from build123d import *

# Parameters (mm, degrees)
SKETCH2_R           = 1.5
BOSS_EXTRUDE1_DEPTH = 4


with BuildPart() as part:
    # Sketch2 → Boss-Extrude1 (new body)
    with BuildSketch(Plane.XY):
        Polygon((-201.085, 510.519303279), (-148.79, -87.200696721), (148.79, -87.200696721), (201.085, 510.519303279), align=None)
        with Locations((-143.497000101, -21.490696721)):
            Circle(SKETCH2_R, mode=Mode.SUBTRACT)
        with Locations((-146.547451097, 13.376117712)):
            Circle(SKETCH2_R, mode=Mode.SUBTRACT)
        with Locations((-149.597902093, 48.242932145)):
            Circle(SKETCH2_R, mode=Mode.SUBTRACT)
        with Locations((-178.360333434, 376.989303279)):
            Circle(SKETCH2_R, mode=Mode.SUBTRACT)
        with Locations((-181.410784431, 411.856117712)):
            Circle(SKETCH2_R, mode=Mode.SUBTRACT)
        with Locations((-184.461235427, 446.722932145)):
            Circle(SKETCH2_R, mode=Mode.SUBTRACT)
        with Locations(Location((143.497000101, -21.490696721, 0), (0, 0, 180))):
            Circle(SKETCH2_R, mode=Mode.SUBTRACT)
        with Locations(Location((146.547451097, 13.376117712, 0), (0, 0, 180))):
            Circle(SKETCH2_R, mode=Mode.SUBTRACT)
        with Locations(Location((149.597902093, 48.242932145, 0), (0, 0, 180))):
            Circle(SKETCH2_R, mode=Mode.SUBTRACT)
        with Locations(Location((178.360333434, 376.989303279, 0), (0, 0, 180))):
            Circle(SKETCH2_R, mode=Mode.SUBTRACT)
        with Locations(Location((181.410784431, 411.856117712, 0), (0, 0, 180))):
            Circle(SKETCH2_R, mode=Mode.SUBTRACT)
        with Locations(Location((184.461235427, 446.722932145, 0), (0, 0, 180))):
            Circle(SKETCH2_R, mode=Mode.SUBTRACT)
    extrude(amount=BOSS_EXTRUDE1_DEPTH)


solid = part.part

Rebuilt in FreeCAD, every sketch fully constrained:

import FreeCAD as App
import Part
import Sketcher

V = App.Vector
Q = App.Units.Quantity

doc = App.newDocument("Part")
body = doc.addObject("PartDesign::Body", "Body")

sketch1 = body.newObject("Sketcher::SketchObject", "Sketch")
sketch1.AttachmentSupport = (doc.getObject("XY_Plane"), [""])
sketch1.MapMode = "FlatFace"
sketch1.addGeometry([
    Part.LineSegment(V(-201.1, 510.5, 0), V(-148.8, -87.2, 0)),
    Part.LineSegment(V(-148.8, -87.2, 0), V(148.8, -87.2, 0)),
    Part.LineSegment(V(148.8, -87.2, 0), V(201.1, 510.5, 0)),
    Part.LineSegment(V(201.1, 510.5, 0), V(-201.1, 510.5, 0)),
    Part.Circle(V(-143.5, -21.5, 0), V(0, 0, 1), 1.5),
    Part.Circle(V(-146.5, 13.4, 0), V(0, 0, 1), 1.5),
    Part.Circle(V(-149.6, 48.2, 0), V(0, 0, 1), 1.5),
    Part.Circle(V(143.5, -21.5, 0), V(0, 0, 1), 1.5),
    Part.Circle(V(146.5, 13.4, 0), V(0, 0, 1), 1.5),
    Part.Circle(V(149.6, 48.2, 0), V(0, 0, 1), 1.5),
    Part.Circle(V(-178.4, 377, 0), V(0, 0, 1), 1.5),
    Part.Circle(V(-181.4, 411.9, 0), V(0, 0, 1), 1.5),
    Part.Circle(V(-184.5, 446.7, 0), V(0, 0, 1), 1.5),
    Part.Circle(V(178.4, 377, 0), V(0, 0, 1), 1.5),
    Part.Circle(V(181.4, 411.9, 0), V(0, 0, 1), 1.5),
    Part.Circle(V(184.5, 446.7, 0), V(0, 0, 1), 1.5),
], False)
sketch1.addConstraint([
    Sketcher.Constraint("Coincident", 0, 2, 1, 1),
    Sketcher.Constraint("Coincident", 1, 2, 2, 1),
    Sketcher.Constraint("Coincident", 2, 2, 3, 1),
    Sketcher.Constraint("Coincident", 3, 2, 0, 1),
    Sketcher.Constraint("Horizontal", 1),
    Sketcher.Constraint("Horizontal", 3),
    Sketcher.Constraint("Equal", 4, 5),
    Sketcher.Constraint("Equal", 5, 6),
    Sketcher.Constraint("Equal", 6, 7),
    Sketcher.Constraint("Equal", 7, 8),
    Sketcher.Constraint("Equal", 8, 9),
    Sketcher.Constraint("Equal", 9, 10),
    Sketcher.Constraint("Equal", 10, 11),
    Sketcher.Constraint("Equal", 11, 12),
    Sketcher.Constraint("Equal", 12, 13),
    Sketcher.Constraint("Equal", 13, 14),
    Sketcher.Constraint("Equal", 14, 15),
    Sketcher.Constraint("Symmetric", 4, 3, 7, 3, -2),
    Sketcher.Constraint("Symmetric", 5, 3, 8, 3, -2),
    Sketcher.Constraint("Symmetric", 6, 3, 9, 3, -2),
    Sketcher.Constraint("Symmetric", 10, 3, 13, 3, -2),
    Sketcher.Constraint("Symmetric", 11, 3, 14, 3, -2),
    Sketcher.Constraint("Symmetric", 12, 3, 15, 3, -2),
    Sketcher.Constraint("Equal", 0, 2),
    Sketcher.Constraint("Diameter", 4, Q("3 mm")),
    Sketcher.Constraint("DistanceX", 1, 1, 1, 2, Q("297.58 mm")),
    Sketcher.Constraint("DistanceX", 3, 2, 3, 1, Q("402.17 mm")),
    Sketcher.Constraint("DistanceX", 0, 2, -1, 1, Q("148.79 mm")),
    Sketcher.Constraint("DistanceY", 4, 3, 10, 3, Q("398.48 mm")),
    Sketcher.Constraint("DistanceY", 5, 3, 11, 3, Q("398.48 mm")),
    Sketcher.Constraint("DistanceY", 6, 3, 12, 3, Q("398.48 mm")),
    Sketcher.Constraint("DistanceY", 0, 2, 4, 3, Q("65.71 mm")),
    Sketcher.Constraint("DistanceY", 13, 3, 2, 2, Q("133.53 mm")),
    Sketcher.Constraint("DistanceX", 4, 3, -1, 1, Q("143.497 mm")),
    Sketcher.Constraint("DistanceX", 6, 3, 4, 3, Q("6.100902 mm")),
    Sketcher.Constraint("DistanceX", 12, 3, 10, 3, Q("6.100902 mm")),
    Sketcher.Constraint("DistanceX", 5, 3, -1, 1, Q("146.547451 mm")),
    Sketcher.Constraint("DistanceY", 4, 3, 6, 3, Q("69.733629 mm")),
    Sketcher.Constraint("DistanceX", 10, 3, 6, 3, Q("28.762431 mm")),
    Sketcher.Constraint("DistanceX", 11, 3, 10, 3, Q("3.050451 mm")),
    Sketcher.Constraint("DistanceY", 4, 3, -1, 1, Q("21.490697 mm")),
    Sketcher.Constraint("DistanceY", -1, 1, 5, 3, Q("13.376118 mm")),
])
pad1 = body.newObject("PartDesign::Pad", "Pad")
pad1.Profile = sketch1
pad1.Length = 4

doc.recompute()
